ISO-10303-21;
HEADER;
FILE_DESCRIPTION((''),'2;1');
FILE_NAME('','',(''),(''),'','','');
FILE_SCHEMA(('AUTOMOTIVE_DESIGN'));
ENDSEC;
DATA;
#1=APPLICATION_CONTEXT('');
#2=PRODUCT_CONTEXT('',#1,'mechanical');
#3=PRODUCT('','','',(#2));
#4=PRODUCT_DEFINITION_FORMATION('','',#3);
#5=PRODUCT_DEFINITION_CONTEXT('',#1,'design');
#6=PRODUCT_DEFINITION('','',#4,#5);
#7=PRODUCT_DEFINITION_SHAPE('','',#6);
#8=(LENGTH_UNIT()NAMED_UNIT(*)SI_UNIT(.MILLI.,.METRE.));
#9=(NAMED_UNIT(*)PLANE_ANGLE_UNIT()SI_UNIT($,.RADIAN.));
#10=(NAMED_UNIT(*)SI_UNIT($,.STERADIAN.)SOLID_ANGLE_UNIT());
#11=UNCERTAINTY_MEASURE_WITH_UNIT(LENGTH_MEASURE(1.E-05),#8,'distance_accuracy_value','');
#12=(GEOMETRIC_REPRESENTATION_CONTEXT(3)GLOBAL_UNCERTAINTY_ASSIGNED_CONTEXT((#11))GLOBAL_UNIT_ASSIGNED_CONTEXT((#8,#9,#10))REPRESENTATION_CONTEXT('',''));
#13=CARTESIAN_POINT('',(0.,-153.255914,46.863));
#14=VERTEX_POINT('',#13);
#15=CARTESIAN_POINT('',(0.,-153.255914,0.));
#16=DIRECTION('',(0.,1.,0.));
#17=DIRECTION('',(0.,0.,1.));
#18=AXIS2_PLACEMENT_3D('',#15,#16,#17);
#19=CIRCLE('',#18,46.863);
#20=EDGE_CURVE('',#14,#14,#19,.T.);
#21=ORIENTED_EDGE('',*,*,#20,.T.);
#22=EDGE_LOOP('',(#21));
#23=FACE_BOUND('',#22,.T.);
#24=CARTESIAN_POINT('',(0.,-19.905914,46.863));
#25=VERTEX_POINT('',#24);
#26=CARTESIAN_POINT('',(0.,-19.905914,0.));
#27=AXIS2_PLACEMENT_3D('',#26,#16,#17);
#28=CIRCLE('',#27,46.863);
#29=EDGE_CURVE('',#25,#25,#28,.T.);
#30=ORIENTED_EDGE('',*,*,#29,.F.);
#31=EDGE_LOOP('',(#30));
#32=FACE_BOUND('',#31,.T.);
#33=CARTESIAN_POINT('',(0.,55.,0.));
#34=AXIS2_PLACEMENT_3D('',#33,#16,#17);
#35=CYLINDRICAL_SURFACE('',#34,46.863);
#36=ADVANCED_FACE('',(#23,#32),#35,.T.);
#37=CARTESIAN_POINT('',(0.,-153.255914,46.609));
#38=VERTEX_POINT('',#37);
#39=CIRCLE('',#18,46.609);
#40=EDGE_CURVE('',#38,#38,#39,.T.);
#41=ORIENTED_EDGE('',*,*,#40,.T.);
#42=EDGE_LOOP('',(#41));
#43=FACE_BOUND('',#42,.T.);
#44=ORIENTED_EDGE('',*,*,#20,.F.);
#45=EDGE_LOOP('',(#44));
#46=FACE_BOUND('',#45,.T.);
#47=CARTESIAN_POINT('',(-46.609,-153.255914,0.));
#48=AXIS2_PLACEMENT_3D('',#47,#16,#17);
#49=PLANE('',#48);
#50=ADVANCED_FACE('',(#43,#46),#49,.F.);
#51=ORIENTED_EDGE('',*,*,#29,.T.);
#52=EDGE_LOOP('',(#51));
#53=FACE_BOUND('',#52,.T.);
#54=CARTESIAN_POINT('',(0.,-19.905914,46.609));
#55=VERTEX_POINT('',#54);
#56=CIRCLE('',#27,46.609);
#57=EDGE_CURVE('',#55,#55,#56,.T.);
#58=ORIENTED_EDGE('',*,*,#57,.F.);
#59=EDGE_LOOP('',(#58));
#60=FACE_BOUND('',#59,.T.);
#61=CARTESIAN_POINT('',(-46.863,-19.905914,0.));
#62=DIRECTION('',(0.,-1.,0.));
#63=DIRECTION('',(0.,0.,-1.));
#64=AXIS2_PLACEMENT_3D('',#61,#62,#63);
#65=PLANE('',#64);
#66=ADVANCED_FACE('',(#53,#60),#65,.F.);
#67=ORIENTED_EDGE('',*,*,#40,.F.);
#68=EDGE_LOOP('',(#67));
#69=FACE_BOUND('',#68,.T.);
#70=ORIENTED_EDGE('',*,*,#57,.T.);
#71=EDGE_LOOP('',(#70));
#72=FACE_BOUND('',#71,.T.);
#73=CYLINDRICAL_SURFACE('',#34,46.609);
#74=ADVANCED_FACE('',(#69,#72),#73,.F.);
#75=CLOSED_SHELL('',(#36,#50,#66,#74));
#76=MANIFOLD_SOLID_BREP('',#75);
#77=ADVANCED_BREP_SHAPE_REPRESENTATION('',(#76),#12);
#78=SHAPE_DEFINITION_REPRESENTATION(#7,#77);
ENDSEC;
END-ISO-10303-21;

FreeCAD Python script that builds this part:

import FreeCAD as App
import Part
import Sketcher
Q = App.Units.Quantity

doc = App.newDocument("Part")
body = doc.addObject("PartDesign::Body", "Body")

# Sketch on XY plane
sketch1 = doc.addObject("Sketcher::SketchObject", "Sketch")
body.addObject(sketch1)
sketch1.AttachmentSupport = (doc.XY_Plane, [""])
sketch1.MapMode = "FlatFace"
sketch1.addGeometry(Part.LineSegment(App.Vector(-46.86, -19.91, 0), App.Vector(-46.86, -153.26, 0)), False)
sketch1.addGeometry(Part.LineSegment(App.Vector(-46.86, -153.26, 0), App.Vector(-46.61, -153.26, 0)), False)
sketch1.addGeometry(Part.LineSegment(App.Vector(-46.61, -153.26, 0), App.Vector(-46.61, -19.91, 0)), False)
sketch1.addGeometry(Part.LineSegment(App.Vector(-46.61, -19.91, 0), App.Vector(-46.86, -19.91, 0)), False)
sketch1.addConstraint(Sketcher.Constraint("Coincident", 0, 2, 1, 1))
sketch1.addConstraint(Sketcher.Constraint("Coincident", 1, 2, 2, 1))
sketch1.addConstraint(Sketcher.Constraint("Coincident", 2, 2, 3, 1))
sketch1.addConstraint(Sketcher.Constraint("Coincident", 3, 2, 0, 1))
sketch1.addConstraint(Sketcher.Constraint("Vertical", 0))
sketch1.addConstraint(Sketcher.Constraint("Horizontal", 1))
sketch1.addConstraint(Sketcher.Constraint("Vertical", 2))
sketch1.addConstraint(Sketcher.Constraint("Horizontal", 3))
sketch1.addConstraint(Sketcher.Constraint("DistanceX", 1, 1, 1, 2, Q("0.01 in")))
sketch1.addConstraint(Sketcher.Constraint("DistanceY", 0, 2, 0, 1, Q("5.25 in")))
sketch1.addConstraint(Sketcher.Constraint("DistanceX", 0, 2, -1, 1, Q("1.845 in")))
sketch1.addConstraint(Sketcher.Constraint("DistanceY", 0, 2, -1, 1, Q("153.255914 mm")))
revolution = doc.addObject("PartDesign::Revolution", "Revolution")
body.addObject(revolution)
revolution.Profile = sketch1
revolution.ReferenceAxis = (sketch1, ["V_Axis"])
revolution.Angle = 360

doc.recompute()
